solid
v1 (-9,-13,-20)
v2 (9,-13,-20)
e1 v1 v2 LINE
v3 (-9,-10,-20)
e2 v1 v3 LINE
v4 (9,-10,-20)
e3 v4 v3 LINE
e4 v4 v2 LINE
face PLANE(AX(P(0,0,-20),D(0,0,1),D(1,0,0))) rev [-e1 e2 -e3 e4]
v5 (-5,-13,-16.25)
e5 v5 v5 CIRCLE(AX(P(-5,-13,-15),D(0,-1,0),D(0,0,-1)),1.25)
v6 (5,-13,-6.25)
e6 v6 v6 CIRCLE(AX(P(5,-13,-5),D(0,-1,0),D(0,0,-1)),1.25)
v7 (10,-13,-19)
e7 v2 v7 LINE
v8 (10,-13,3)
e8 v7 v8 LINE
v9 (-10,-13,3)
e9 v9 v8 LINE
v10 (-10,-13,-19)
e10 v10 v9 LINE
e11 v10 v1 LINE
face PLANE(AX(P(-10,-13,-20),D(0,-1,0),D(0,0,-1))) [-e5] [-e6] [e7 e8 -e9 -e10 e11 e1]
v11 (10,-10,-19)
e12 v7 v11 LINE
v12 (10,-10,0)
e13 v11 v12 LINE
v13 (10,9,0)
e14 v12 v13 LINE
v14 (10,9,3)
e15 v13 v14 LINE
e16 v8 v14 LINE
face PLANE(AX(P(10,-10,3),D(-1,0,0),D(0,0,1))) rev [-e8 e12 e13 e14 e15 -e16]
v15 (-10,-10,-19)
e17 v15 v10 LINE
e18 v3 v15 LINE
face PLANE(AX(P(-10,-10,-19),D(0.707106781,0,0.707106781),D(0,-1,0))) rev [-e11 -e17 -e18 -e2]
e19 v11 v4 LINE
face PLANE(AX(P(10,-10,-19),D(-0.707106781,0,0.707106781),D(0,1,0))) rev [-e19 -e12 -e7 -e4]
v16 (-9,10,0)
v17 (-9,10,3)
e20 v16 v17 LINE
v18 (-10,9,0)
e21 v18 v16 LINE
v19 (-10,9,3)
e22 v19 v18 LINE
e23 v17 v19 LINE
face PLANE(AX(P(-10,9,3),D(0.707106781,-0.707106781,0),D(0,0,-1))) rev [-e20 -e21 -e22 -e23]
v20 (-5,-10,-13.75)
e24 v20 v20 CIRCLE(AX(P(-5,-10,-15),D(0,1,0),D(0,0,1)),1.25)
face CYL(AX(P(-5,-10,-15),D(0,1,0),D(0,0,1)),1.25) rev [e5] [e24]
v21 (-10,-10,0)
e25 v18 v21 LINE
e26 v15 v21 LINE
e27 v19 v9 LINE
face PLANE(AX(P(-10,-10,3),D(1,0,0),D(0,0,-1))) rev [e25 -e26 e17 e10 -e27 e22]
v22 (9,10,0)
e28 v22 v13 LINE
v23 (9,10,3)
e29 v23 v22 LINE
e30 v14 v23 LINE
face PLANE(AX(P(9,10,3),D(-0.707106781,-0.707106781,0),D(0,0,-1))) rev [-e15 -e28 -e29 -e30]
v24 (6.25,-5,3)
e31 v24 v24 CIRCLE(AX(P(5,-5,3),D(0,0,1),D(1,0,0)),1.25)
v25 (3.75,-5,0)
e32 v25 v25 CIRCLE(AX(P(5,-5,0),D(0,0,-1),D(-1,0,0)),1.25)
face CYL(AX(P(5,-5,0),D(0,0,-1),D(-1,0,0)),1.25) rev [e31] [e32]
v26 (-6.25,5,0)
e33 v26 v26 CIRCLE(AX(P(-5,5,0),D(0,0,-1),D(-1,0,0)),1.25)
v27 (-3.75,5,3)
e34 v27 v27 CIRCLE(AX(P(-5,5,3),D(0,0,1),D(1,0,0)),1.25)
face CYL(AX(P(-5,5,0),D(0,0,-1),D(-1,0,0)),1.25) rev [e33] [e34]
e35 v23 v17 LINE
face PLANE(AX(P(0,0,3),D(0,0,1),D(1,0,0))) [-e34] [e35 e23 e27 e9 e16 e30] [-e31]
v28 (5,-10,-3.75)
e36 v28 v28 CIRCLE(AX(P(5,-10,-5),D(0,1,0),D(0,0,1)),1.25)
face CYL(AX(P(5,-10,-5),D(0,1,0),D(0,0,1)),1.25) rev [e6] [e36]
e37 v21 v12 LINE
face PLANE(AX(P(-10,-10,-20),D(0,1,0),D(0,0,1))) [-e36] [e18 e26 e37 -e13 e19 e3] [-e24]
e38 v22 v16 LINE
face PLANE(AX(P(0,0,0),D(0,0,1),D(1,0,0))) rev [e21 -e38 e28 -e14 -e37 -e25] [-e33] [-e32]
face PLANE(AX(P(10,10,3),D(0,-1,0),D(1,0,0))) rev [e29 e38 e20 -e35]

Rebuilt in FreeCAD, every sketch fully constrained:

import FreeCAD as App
import Part
import Sketcher
from FreeCAD import Vector
Q = App.Units.Quantity


def edges_at(feature, points):
    """Names of the edges that pass closest to the given points."""
    edges = feature.Shape.Edges
    near = lambda p: min(range(len(edges)), key=lambda i: edges[i].distToShape(Part.Vertex(*p))[0])
    return sorted({f"Edge{near(p) + 1}" for p in points})

doc = App.newDocument("Part")
body = doc.addObject("PartDesign::Body", "Body")

# Sketch on XY plane
sketch1 = doc.addObject("Sketcher::SketchObject", "Sketch")
body.addObject(sketch1)
sketch1.AttachmentSupport = (doc.XY_Plane, [""])
sketch1.MapMode = "FlatFace"
sketch1.addGeometry(Part.LineSegment(Vector(-10, 10, 0), Vector(-10, -10, 0)), False)
sketch1.addGeometry(Part.LineSegment(Vector(-10, -10, 0), Vector(10, -10, 0)), False)
sketch1.addGeometry(Part.LineSegment(Vector(10, -10, 0), Vector(10, 10, 0)), False)
sketch1.addGeometry(Part.LineSegment(Vector(10, 10, 0), Vector(-10, 10, 0)), False)
sketch1.addConstraint(Sketcher.Constraint("Coincident", 0, 2, 1, 1))
sketch1.addConstraint(Sketcher.Constraint("Coincident", 1, 2, 2, 1))
sketch1.addConstraint(Sketcher.Constraint("Coincident", 2, 2, 3, 1))
sketch1.addConstraint(Sketcher.Constraint("Coincident", 3, 2, 0, 1))
sketch1.addConstraint(Sketcher.Constraint("Vertical", 0))
sketch1.addConstraint(Sketcher.Constraint("Horizontal", 1))
sketch1.addConstraint(Sketcher.Constraint("Vertical", 2))
sketch1.addConstraint(Sketcher.Constraint("Horizontal", 3))
sketch1.addConstraint(Sketcher.Constraint("Symmetric", 0, 2, 2, 2, -1, 1))
sketch1.addConstraint(Sketcher.Constraint("Equal", 3, 0))
sketch1.addConstraint(Sketcher.Constraint("DistanceX", 1, 1, 1, 2, Q("20 mm")))
pad1 = doc.addObject("PartDesign::Pad", "Pad")
body.addObject(pad1)
pad1.Profile = sketch1
pad1.Length = 3

# Sketch on XY plane
sketch2 = doc.addObject("Sketcher::SketchObject", "Sketch001")
body.addObject(sketch2)
sketch2.AttachmentSupport = (doc.XY_Plane, [""])
sketch2.MapMode = "FlatFace"
sketch2.AttachmentOffset = App.Placement(Vector(0, 0, 3), App.Rotation())
sketch2.addGeometry(Part.LineSegment(Vector(-10, -10, 0), Vector(-10, -13, 0)), False)
sketch2.addGeometry(Part.LineSegment(Vector(-10, -13, 0), Vector(10, -13, 0)), False)
sketch2.addGeometry(Part.LineSegment(Vector(10, -13, 0), Vector(10, -10, 0)), False)
sketch2.addGeometry(Part.LineSegment(Vector(10, -10, 0), Vector(-10, -10, 0)), False)
sketch2.addConstraint(Sketcher.Constraint("Coincident", 0, 2, 1, 1))
sketch2.addConstraint(Sketcher.Constraint("Coincident", 1, 2, 2, 1))
sketch2.addConstraint(Sketcher.Constraint("Coincident", 2, 2, 3, 1))
sketch2.addConstraint(Sketcher.Constraint("Coincident", 3, 2, 0, 1))
sketch2.addConstraint(Sketcher.Constraint("Vertical", 0))
sketch2.addConstraint(Sketcher.Constraint("Horizontal", 1))
sketch2.addConstraint(Sketcher.Constraint("Vertical", 2))
sketch2.addConstraint(Sketcher.Constraint("Horizontal", 3))
sketch2.addConstraint(Sketcher.Constraint("DistanceX", 1, 1, 1, 2, Q("20 mm")))
sketch2.addConstraint(Sketcher.Constraint("DistanceY", 0, 2, 0, 1, Q("3 mm")))
sketch2.addConstraint(Sketcher.Constraint("DistanceX", 0, 2, -1, 1, Q("10 mm")))
sketch2.addConstraint(Sketcher.Constraint("DistanceY", 0, 2, -1, 1, Q("13 mm")))
pad2 = doc.addObject("PartDesign::Pad", "Pad001")
body.addObject(pad2)
pad2.Profile = sketch2
pad2.Length = 23
pad2.Reversed = True

# Sketch on XY plane
sketch3 = doc.addObject("Sketcher::SketchObject", "Sketch002")
body.addObject(sketch3)
sketch3.AttachmentSupport = (doc.XY_Plane, [""])
sketch3.MapMode = "FlatFace"
sketch3.addGeometry(Part.Circle(Vector(-5, 5, 0), Vector(0, 0, 1), 1.25), False)
sketch3.addGeometry(Part.Circle(Vector(5, -5, 0), Vector(0, 0, 1), 1.25), False)
sketch3.addConstraint(Sketcher.Constraint("Equal", 0, 1))
sketch3.addConstraint(Sketcher.Constraint("Symmetric", 0, 3, 1, 3, -1, 1))
sketch3.addConstraint(Sketcher.Constraint("Diameter", 0, Q("2.5 mm")))
sketch3.addConstraint(Sketcher.Constraint("DistanceX", 0, 3, -1, 1, Q("5 mm")))
sketch3.addConstraint(Sketcher.Constraint("DistanceY", -1, 1, 0, 3, Q("5 mm")))
doc.recompute()
hole = doc.addObject("PartDesign::Hole", "Hole")
body.addObject(hole)
hole.Profile = sketch3
hole.ThreadType = "None"
hole.Diameter = 2.5
hole.DepthType = "Dimension"
hole.Depth = 7.5
hole.DrillPoint = "Angled"
hole.DrillPointAngle = 118
hole.Reversed = True

# Sketch on XZ plane
sketch4 = doc.addObject("Sketcher::SketchObject", "Sketch003")
body.addObject(sketch4)
sketch4.AttachmentSupport = (doc.XZ_Plane, [""])
sketch4.MapMode = "FlatFace"
sketch4.AttachmentOffset = App.Placement(Vector(0, 0, 10), App.Rotation())
sketch4.addGeometry(Part.Circle(Vector(-5, -15, 0), Vector(0, 0, 1), 1.25), False)
sketch4.addGeometry(Part.Circle(Vector(5, -5, 0), Vector(0, 0, 1), 1.25), False)
sketch4.addConstraint(Sketcher.Constraint("Equal", 0, 1))
sketch4.addConstraint(Sketcher.Constraint("Diameter", 0, Q("2.5 mm")))
sketch4.addConstraint(Sketcher.Constraint("DistanceX", 0, 3, -1, 1, Q("5 mm")))
sketch4.addConstraint(Sketcher.Constraint("DistanceY", 0, 3, -1, 1, Q("15 mm")))
sketch4.addConstraint(Sketcher.Constraint("DistanceX", -1, 1, 1, 3, Q("5 mm")))
sketch4.addConstraint(Sketcher.Constraint("DistanceY", 1, 3, -1, 1, Q("5 mm")))
doc.recompute()
hole2 = doc.addObject("PartDesign::Hole", "Hole001")
body.addObject(hole2)
hole2.Profile = sketch4
hole2.ThreadType = "None"
hole2.Diameter = 2.5
hole2.DepthType = "Dimension"
hole2.Depth = 7.5
hole2.DrillPoint = "Angled"
hole2.DrillPointAngle = 118
hole2.Reversed = True
doc.recompute()

chamfer = doc.addObject("PartDesign::Chamfer", "Chamfer")
body.addObject(chamfer)
chamfer.Base = (hole2, edges_at(hole2, [
    (-10, -11.5, -20),
    (10, -11.5, -20),
    (-10, 10, 1.5),
    (10, 10, 1.5),
]))
chamfer.Size = 1

doc.recompute()
